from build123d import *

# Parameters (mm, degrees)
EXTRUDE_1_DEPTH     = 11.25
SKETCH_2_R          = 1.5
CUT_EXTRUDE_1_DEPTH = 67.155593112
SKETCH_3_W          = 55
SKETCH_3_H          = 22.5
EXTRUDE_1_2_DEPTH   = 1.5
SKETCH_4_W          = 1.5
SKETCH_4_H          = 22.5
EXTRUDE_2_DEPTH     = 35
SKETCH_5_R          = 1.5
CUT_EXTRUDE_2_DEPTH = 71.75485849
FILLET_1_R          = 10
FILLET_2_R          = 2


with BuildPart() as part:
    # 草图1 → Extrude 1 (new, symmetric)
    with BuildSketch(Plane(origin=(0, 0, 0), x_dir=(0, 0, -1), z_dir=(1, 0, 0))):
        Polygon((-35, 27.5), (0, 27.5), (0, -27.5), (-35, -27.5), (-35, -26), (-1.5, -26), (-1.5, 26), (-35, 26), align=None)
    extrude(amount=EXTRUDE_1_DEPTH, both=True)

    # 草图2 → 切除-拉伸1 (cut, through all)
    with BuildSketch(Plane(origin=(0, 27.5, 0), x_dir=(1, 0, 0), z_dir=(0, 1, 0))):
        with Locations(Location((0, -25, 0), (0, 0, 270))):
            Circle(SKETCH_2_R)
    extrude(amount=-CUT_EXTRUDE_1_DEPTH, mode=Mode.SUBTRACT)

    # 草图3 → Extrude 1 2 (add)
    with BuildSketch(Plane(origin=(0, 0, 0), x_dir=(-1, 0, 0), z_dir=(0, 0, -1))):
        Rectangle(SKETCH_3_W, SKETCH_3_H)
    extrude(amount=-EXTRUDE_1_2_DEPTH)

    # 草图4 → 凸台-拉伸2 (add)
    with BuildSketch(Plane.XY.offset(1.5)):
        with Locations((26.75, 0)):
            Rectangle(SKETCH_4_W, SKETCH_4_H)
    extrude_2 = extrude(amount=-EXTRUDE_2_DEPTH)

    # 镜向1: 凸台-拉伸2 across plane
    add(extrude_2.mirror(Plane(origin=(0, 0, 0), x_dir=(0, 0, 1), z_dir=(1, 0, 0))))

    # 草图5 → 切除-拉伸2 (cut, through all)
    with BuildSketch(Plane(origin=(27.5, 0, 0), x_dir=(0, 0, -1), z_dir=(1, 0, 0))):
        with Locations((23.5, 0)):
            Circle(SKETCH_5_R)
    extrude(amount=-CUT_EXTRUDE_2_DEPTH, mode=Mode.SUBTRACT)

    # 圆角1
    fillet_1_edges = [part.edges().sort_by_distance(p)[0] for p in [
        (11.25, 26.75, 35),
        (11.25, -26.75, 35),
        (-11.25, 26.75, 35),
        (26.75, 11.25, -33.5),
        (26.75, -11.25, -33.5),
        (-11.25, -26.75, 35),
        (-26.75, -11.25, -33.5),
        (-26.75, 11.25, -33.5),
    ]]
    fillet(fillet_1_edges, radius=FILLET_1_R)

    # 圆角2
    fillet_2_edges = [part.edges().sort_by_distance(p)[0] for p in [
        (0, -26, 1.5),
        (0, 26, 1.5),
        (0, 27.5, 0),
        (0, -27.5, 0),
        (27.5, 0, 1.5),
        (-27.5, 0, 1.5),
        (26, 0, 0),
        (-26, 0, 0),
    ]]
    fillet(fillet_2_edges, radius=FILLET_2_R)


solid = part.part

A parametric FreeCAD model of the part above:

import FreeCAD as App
import Part
import Sketcher
Q = App.Units.Quantity


def edges_at(feature, points):
    """Names of the edges that pass closest to the given points."""
    edges = feature.Shape.Edges
    near = lambda p: min(range(len(edges)), key=lambda i: edges[i].distToShape(Part.Vertex(*p))[0])
    return sorted({f"Edge{near(p) + 1}" for p in points})

doc = App.newDocument("Part")
body = doc.addObject("PartDesign::Body", "Body")

# Sketch on YZ plane
sketch1 = body.newObject("Sketcher::SketchObject", "Sketch")
sketch1.AttachmentSupport = (doc.getObject("YZ_Plane"), [""])
sketch1.MapMode = "FlatFace"
sketch1.addGeometry(Part.LineSegment(App.Vector(27.5, 0, 0), App.Vector(27.5, 35, 0)), False)
sketch1.addGeometry(Part.LineSegment(App.Vector(27.5, 35, 0), App.Vector(26, 35, 0)), False)
sketch1.addGeometry(Part.LineSegment(App.Vector(26, 35, 0), App.Vector(26, 1.5, 0)), False)
sketch1.addGeometry(Part.LineSegment(App.Vector(26, 1.5, 0), App.Vector(-26, 1.5, 0)), False)
sketch1.addGeometry(Part.LineSegment(App.Vector(-26, 1.5, 0), App.Vector(-26, 35, 0)), False)
sketch1.addGeometry(Part.LineSegment(App.Vector(-26, 35, 0), App.Vector(-27.5, 35, 0)), False)
sketch1.addGeometry(Part.LineSegment(App.Vector(-27.5, 35, 0), App.Vector(-27.5, 0, 0)), False)
sketch1.addGeometry(Part.LineSegment(App.Vector(-27.5, 0, 0), App.Vector(27.5, 0, 0)), False)
sketch1.addConstraint(Sketcher.Constraint("Coincident", 0, 2, 1, 1))
sketch1.addConstraint(Sketcher.Constraint("Coincident", 1, 2, 2, 1))
sketch1.addConstraint(Sketcher.Constraint("Coincident", 2, 2, 3, 1))
sketch1.addConstraint(Sketcher.Constraint("Coincident", 3, 2, 4, 1))
sketch1.addConstraint(Sketcher.Constraint("Coincident", 4, 2, 5, 1))
sketch1.addConstraint(Sketcher.Constraint("Coincident", 5, 2, 6, 1))
sketch1.addConstraint(Sketcher.Constraint("Coincident", 6, 2, 7, 1))
sketch1.addConstraint(Sketcher.Constraint("Coincident", 7, 2, 0, 1))
sketch1.addConstraint(Sketcher.Constraint("Vertical", 0))
sketch1.addConstraint(Sketcher.Constraint("Horizontal", 1))
sketch1.addConstraint(Sketcher.Constraint("Vertical", 2))
sketch1.addConstraint(Sketcher.Constraint("Horizontal", 3))
sketch1.addConstraint(Sketcher.Constraint("Vertical", 4))
sketch1.addConstraint(Sketcher.Constraint("Horizontal", 5))
sketch1.addConstraint(Sketcher.Constraint("Vertical", 6))
sketch1.addConstraint(Sketcher.Constraint("Horizontal", 7))
sketch1.addConstraint(Sketcher.Constraint("Symmetric", 6, 2, 7, 2, -1, 1))
sketch1.addConstraint(Sketcher.Constraint("Symmetric", 1, 2, 4, 2, -2))
sketch1.addConstraint(Sketcher.Constraint("DistanceX", 3, 2, 3, 1, Q("52 mm")))
sketch1.addConstraint(Sketcher.Constraint("DistanceX", 7, 1, 7, 2, Q("55 mm")))
sketch1.addConstraint(Sketcher.Constraint("DistanceY", 0, 1, 0, 2, Q("35 mm")))
sketch1.addConstraint(Sketcher.Constraint("DistanceY", 2, 2, 2, 1, Q("33.5 mm")))
pad1 = body.newObject("PartDesign::Pad", "Pad")
pad1.Profile = sketch1
pad1.Length = 22.5
pad1.Midplane = True

# Sketch on XZ plane
sketch2 = body.newObject("Sketcher::SketchObject", "Sketch001")
sketch2.AttachmentSupport = (doc.getObject("XZ_Plane"), [""])
sketch2.MapMode = "FlatFace"
sketch2.AttachmentOffset = App.Placement(App.Vector(0, 0, -27.5), App.Rotation())
sketch2.addGeometry(Part.Circle(App.Vector(0, 25, 0), App.Vector(0, 0, 1), 1.5), False)
sketch2.addConstraint(Sketcher.Constraint("PointOnObject", 0, 3, -2))
sketch2.addConstraint(Sketcher.Constraint("Diameter", 0, Q("3 mm")))
sketch2.addConstraint(Sketcher.Constraint("DistanceY", -1, 1, 0, 3, Q("25 mm")))
pocket1 = body.newObject("PartDesign::Pocket", "Pocket")
pocket1.Profile = sketch2
pocket1.Type = "ThroughAll"
pocket1.Reversed = True

# Sketch on XY plane
sketch3 = body.newObject("Sketcher::SketchObject", "Sketch002")
sketch3.AttachmentSupport = (doc.getObject("XY_Plane"), [""])
sketch3.MapMode = "FlatFace"
sketch3.addGeometry(Part.LineSegment(App.Vector(27.5, 11.25, 0), App.Vector(27.5, -11.25, 0)), False)
sketch3.addGeometry(Part.LineSegment(App.Vector(27.5, -11.25, 0), App.Vector(-27.5, -11.25, 0)), False)
sketch3.addGeometry(Part.LineSegment(App.Vector(-27.5, -11.25, 0), App.Vector(-27.5, 11.25, 0)), False)
sketch3.addGeometry(Part.LineSegment(App.Vector(-27.5, 11.25, 0), App.Vector(27.5, 11.25, 0)), False)
sketch3.addConstraint(Sketcher.Constraint("Coincident", 0, 2, 1, 1))
sketch3.addConstraint(Sketcher.Constraint("Coincident", 1, 2, 2, 1))
sketch3.addConstraint(Sketcher.Constraint("Coincident", 2, 2, 3, 1))
sketch3.addConstraint(Sketcher.Constraint("Coincident", 3, 2, 0, 1))
sketch3.addConstraint(Sketcher.Constraint("Vertical", 0))
sketch3.addConstraint(Sketcher.Constraint("Horizontal", 1))
sketch3.addConstraint(Sketcher.Constraint("Vertical", 2))
sketch3.addConstraint(Sketcher.Constraint("Horizontal", 3))
sketch3.addConstraint(Sketcher.Constraint("Symmetric", 0, 2, 2, 2, -1, 1))
sketch3.addConstraint(Sketcher.Constraint("DistanceX", 1, 2, 1, 1, Q("55 mm")))
sketch3.addConstraint(Sketcher.Constraint("DistanceY", 0, 2, 0, 1, Q("22.5 mm")))
pad2 = body.newObject("PartDesign::Pad", "Pad001")
pad2.Profile = sketch3
pad2.Length = 1.5

# Sketch on XY plane
sketch4 = body.newObject("Sketcher::SketchObject", "Sketch003")
sketch4.AttachmentSupport = (doc.getObject("XY_Plane"), [""])
sketch4.MapMode = "FlatFace"
sketch4.AttachmentOffset = App.Placement(App.Vector(0, 0, 1.5), App.Rotation())
sketch4.addGeometry(Part.LineSegment(App.Vector(26, 11.25, 0), App.Vector(26, -11.25, 0)), False)
sketch4.addGeometry(Part.LineSegment(App.Vector(26, -11.25, 0), App.Vector(27.5, -11.25, 0)), False)
sketch4.addGeometry(Part.LineSegment(App.Vector(27.5, -11.25, 0), App.Vector(27.5, 11.25, 0)), False)
sketch4.addGeometry(Part.LineSegment(App.Vector(27.5, 11.25, 0), App.Vector(26, 11.25, 0)), False)
sketch4.addConstraint(Sketcher.Constraint("Coincident", 0, 2, 1, 1))
sketch4.addConstraint(Sketcher.Constraint("Coincident", 1, 2, 2, 1))
sketch4.addConstraint(Sketcher.Constraint("Coincident", 2, 2, 3, 1))
sketch4.addConstraint(Sketcher.Constraint("Coincident", 3, 2, 0, 1))
sketch4.addConstraint(Sketcher.Constraint("Vertical", 0))
sketch4.addConstraint(Sketcher.Constraint("Horizontal", 1))
sketch4.addConstraint(Sketcher.Constraint("Vertical", 2))
sketch4.addConstraint(Sketcher.Constraint("Horizontal", 3))
sketch4.addConstraint(Sketcher.Constraint("DistanceX", 1, 1, 1, 2, Q("1.5 mm")))
sketch4.addConstraint(Sketcher.Constraint("DistanceY", 0, 2, 0, 1, Q("22.5 mm")))
sketch4.addConstraint(Sketcher.Constraint("DistanceX", -1, 1, 0, 2, Q("26 mm")))
sketch4.addConstraint(Sketcher.Constraint("DistanceY", 0, 2, -1, 1, Q("11.25 mm")))
pad3 = body.newObject("PartDesign::Pad", "Pad002")
pad3.Profile = sketch4
pad3.Length = 35
pad3.Reversed = True
doc.recompute()

mirrored = body.newObject("PartDesign::Mirrored", "Mirrored")
mirrored.Originals = [pad3]
mirrored.MirrorPlane = (doc.getObject("YZ_Plane"), [""])
body.Tip = mirrored

# Sketch on YZ plane
sketch5 = body.newObject("Sketcher::SketchObject", "Sketch004")
sketch5.AttachmentSupport = (doc.getObject("YZ_Plane"), [""])
sketch5.MapMode = "FlatFace"
sketch5.AttachmentOffset = App.Placement(App.Vector(0, 0, 27.5), App.Rotation())
sketch5.addGeometry(Part.Circle(App.Vector(0, -23.5, 0), App.Vector(0, 0, 1), 1.5), False)
sketch5.addConstraint(Sketcher.Constraint("PointOnObject", 0, 3, -2))
sketch5.addConstraint(Sketcher.Constraint("Diameter", 0, Q("3 mm")))
sketch5.addConstraint(Sketcher.Constraint("DistanceY", 0, 3, -1, 1, Q("23.5 mm")))
pocket2 = body.newObject("PartDesign::Pocket", "Pocket001")
pocket2.Profile = sketch5
pocket2.Type = "ThroughAll"
doc.recompute()

fillet = body.newObject("PartDesign::Fillet", "Fillet")
fillet.Base = (pocket2, edges_at(pocket2, [
    (11.25, 26.75, 35),
    (11.25, -26.75, 35),
    (-11.25, 26.75, 35),
    (26.75, 11.25, -33.5),
    (26.75, -11.25, -33.5),
    (-11.25, -26.75, 35),
    (-26.75, -11.25, -33.5),
    (-26.75, 11.25, -33.5),
]))
fillet.Radius = 10
doc.recompute()

fillet2 = body.newObject("PartDesign::Fillet", "Fillet001")
fillet2.Base = (fillet, edges_at(fillet, [
    (0, -26, 1.5),
    (0, 26, 1.5),
    (0, 27.5, 0),
    (0, -27.5, 0),
    (27.5, 0, 1.5),
    (-27.5, 0, 1.5),
    (26, 0, 0),
    (-26, 0, 0),
]))
fillet2.Radius = 2

doc.recompute()
